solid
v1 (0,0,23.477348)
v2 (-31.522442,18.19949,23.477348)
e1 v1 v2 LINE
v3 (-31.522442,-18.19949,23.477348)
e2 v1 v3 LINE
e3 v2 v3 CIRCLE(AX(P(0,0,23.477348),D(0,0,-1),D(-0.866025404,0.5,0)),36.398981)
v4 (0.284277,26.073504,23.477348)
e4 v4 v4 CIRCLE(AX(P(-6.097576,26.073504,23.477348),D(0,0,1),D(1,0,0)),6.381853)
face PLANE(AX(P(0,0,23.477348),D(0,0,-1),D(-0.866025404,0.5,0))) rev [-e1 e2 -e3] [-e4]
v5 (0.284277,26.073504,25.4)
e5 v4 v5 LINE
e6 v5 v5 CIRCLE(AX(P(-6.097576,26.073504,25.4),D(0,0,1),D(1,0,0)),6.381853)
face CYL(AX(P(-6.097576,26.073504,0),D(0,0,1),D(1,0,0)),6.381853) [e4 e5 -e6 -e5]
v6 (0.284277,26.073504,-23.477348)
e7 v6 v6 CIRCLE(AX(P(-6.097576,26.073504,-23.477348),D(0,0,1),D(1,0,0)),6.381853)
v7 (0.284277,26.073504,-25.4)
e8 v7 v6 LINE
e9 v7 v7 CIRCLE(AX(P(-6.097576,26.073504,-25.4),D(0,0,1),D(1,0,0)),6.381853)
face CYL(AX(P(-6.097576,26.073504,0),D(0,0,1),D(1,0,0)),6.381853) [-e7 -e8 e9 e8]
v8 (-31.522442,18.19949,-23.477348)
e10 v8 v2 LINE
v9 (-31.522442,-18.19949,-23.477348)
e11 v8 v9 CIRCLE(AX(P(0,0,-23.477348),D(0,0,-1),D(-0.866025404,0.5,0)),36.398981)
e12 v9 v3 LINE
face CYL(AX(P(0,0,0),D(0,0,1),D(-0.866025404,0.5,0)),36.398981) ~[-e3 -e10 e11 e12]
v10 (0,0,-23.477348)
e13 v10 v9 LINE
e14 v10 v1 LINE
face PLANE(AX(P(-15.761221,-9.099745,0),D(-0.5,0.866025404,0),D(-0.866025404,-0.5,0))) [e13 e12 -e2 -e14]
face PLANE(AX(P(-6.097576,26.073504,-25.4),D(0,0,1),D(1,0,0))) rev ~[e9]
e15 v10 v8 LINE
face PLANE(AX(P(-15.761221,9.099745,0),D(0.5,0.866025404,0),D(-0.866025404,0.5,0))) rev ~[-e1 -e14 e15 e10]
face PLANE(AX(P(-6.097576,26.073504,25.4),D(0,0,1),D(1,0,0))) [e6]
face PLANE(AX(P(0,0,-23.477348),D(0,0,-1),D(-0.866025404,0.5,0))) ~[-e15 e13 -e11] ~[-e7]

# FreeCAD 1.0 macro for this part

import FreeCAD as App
import Part
import Sketcher
from FreeCAD import Vector
Q = App.Units.Quantity

doc = App.newDocument("Part")
params = doc.addObject("Spreadsheet::Sheet", "Params")
for row, (alias, value) in enumerate([
    ("revolution_angle", "300 deg"),
    ("pad1_length", "2 in"),
], start=1):
    params.set(f"A{row}", alias)
    params.set(f"B{row}", "=" + value)
    params.setAlias(f"B{row}", alias)

body = doc.addObject("PartDesign::Body", "Body")

# Sketch on an angled plane
sketch1 = body.newObject("Sketcher::SketchObject", "Sketch")
sketch1.Placement = App.Placement(Vector(0, 0, 0), App.Rotation(Vector(-0.866025404, 0.5, 0), Vector(0, 0, 1), Vector(0.5, 0.866025404, 0), "ZXY"))
sketch1.addGeometry([
    Part.LineSegment(Vector(0, 23, 0), Vector(0, -23, 0)),
    Part.LineSegment(Vector(0, -23, 0), Vector(36, -23, 0)),
    Part.LineSegment(Vector(36, -23, 0), Vector(36, 23, 0)),
    Part.LineSegment(Vector(36, 23, 0), Vector(0, 23, 0)),
], False)
sketch1.addConstraint([
    Sketcher.Constraint("Coincident", 0, 2, 1, 1),
    Sketcher.Constraint("Coincident", 1, 2, 2, 1),
    Sketcher.Constraint("Coincident", 2, 2, 3, 1),
    Sketcher.Constraint("Coincident", 3, 2, 0, 1),
    Sketcher.Constraint("Vertical", 0),
    Sketcher.Constraint("Horizontal", 1),
    Sketcher.Constraint("Vertical", 2),
    Sketcher.Constraint("Horizontal", 3),
    Sketcher.Constraint("Symmetric", 0, 2, 3, 2, -1, 1),
    Sketcher.Constraint("DistanceX", 1, 1, 1, 2, Q("36.398981 mm")),
    Sketcher.Constraint("DistanceY", 0, 2, 0, 1, Q("46.954695 mm")),
])
revolution = body.newObject("PartDesign::Revolution", "Revolution")
revolution.Profile = sketch1
revolution.ReferenceAxis = (sketch1, ["V_Axis"])
revolution.setExpression("Angle", "Params.revolution_angle")
revolution.Reversed = True

# Sketch on XY plane
sketch2 = body.newObject("Sketcher::SketchObject", "Sketch001")
sketch2.AttachmentSupport = (doc.getObject("XY_Plane"), [""])
sketch2.MapMode = "FlatFace"
sketch2.addGeometry(Part.Circle(Vector(-6, 26, 0), Vector(0, 0, 1), 6), False)
sketch2.addConstraint([
    Sketcher.Constraint("Diameter", 0, Q("12.763706 mm")),
    Sketcher.Constraint("DistanceX", 0, 3, -1, 1, Q("6.097576 mm")),
    Sketcher.Constraint("DistanceY", -1, 1, 0, 3, Q("26.073504 mm")),
])
pad1 = body.newObject("PartDesign::Pad", "Pad")
pad1.Profile = sketch2
pad1.setExpression("Length", "Params.pad1_length")
pad1.Midplane = True

doc.recompute()
